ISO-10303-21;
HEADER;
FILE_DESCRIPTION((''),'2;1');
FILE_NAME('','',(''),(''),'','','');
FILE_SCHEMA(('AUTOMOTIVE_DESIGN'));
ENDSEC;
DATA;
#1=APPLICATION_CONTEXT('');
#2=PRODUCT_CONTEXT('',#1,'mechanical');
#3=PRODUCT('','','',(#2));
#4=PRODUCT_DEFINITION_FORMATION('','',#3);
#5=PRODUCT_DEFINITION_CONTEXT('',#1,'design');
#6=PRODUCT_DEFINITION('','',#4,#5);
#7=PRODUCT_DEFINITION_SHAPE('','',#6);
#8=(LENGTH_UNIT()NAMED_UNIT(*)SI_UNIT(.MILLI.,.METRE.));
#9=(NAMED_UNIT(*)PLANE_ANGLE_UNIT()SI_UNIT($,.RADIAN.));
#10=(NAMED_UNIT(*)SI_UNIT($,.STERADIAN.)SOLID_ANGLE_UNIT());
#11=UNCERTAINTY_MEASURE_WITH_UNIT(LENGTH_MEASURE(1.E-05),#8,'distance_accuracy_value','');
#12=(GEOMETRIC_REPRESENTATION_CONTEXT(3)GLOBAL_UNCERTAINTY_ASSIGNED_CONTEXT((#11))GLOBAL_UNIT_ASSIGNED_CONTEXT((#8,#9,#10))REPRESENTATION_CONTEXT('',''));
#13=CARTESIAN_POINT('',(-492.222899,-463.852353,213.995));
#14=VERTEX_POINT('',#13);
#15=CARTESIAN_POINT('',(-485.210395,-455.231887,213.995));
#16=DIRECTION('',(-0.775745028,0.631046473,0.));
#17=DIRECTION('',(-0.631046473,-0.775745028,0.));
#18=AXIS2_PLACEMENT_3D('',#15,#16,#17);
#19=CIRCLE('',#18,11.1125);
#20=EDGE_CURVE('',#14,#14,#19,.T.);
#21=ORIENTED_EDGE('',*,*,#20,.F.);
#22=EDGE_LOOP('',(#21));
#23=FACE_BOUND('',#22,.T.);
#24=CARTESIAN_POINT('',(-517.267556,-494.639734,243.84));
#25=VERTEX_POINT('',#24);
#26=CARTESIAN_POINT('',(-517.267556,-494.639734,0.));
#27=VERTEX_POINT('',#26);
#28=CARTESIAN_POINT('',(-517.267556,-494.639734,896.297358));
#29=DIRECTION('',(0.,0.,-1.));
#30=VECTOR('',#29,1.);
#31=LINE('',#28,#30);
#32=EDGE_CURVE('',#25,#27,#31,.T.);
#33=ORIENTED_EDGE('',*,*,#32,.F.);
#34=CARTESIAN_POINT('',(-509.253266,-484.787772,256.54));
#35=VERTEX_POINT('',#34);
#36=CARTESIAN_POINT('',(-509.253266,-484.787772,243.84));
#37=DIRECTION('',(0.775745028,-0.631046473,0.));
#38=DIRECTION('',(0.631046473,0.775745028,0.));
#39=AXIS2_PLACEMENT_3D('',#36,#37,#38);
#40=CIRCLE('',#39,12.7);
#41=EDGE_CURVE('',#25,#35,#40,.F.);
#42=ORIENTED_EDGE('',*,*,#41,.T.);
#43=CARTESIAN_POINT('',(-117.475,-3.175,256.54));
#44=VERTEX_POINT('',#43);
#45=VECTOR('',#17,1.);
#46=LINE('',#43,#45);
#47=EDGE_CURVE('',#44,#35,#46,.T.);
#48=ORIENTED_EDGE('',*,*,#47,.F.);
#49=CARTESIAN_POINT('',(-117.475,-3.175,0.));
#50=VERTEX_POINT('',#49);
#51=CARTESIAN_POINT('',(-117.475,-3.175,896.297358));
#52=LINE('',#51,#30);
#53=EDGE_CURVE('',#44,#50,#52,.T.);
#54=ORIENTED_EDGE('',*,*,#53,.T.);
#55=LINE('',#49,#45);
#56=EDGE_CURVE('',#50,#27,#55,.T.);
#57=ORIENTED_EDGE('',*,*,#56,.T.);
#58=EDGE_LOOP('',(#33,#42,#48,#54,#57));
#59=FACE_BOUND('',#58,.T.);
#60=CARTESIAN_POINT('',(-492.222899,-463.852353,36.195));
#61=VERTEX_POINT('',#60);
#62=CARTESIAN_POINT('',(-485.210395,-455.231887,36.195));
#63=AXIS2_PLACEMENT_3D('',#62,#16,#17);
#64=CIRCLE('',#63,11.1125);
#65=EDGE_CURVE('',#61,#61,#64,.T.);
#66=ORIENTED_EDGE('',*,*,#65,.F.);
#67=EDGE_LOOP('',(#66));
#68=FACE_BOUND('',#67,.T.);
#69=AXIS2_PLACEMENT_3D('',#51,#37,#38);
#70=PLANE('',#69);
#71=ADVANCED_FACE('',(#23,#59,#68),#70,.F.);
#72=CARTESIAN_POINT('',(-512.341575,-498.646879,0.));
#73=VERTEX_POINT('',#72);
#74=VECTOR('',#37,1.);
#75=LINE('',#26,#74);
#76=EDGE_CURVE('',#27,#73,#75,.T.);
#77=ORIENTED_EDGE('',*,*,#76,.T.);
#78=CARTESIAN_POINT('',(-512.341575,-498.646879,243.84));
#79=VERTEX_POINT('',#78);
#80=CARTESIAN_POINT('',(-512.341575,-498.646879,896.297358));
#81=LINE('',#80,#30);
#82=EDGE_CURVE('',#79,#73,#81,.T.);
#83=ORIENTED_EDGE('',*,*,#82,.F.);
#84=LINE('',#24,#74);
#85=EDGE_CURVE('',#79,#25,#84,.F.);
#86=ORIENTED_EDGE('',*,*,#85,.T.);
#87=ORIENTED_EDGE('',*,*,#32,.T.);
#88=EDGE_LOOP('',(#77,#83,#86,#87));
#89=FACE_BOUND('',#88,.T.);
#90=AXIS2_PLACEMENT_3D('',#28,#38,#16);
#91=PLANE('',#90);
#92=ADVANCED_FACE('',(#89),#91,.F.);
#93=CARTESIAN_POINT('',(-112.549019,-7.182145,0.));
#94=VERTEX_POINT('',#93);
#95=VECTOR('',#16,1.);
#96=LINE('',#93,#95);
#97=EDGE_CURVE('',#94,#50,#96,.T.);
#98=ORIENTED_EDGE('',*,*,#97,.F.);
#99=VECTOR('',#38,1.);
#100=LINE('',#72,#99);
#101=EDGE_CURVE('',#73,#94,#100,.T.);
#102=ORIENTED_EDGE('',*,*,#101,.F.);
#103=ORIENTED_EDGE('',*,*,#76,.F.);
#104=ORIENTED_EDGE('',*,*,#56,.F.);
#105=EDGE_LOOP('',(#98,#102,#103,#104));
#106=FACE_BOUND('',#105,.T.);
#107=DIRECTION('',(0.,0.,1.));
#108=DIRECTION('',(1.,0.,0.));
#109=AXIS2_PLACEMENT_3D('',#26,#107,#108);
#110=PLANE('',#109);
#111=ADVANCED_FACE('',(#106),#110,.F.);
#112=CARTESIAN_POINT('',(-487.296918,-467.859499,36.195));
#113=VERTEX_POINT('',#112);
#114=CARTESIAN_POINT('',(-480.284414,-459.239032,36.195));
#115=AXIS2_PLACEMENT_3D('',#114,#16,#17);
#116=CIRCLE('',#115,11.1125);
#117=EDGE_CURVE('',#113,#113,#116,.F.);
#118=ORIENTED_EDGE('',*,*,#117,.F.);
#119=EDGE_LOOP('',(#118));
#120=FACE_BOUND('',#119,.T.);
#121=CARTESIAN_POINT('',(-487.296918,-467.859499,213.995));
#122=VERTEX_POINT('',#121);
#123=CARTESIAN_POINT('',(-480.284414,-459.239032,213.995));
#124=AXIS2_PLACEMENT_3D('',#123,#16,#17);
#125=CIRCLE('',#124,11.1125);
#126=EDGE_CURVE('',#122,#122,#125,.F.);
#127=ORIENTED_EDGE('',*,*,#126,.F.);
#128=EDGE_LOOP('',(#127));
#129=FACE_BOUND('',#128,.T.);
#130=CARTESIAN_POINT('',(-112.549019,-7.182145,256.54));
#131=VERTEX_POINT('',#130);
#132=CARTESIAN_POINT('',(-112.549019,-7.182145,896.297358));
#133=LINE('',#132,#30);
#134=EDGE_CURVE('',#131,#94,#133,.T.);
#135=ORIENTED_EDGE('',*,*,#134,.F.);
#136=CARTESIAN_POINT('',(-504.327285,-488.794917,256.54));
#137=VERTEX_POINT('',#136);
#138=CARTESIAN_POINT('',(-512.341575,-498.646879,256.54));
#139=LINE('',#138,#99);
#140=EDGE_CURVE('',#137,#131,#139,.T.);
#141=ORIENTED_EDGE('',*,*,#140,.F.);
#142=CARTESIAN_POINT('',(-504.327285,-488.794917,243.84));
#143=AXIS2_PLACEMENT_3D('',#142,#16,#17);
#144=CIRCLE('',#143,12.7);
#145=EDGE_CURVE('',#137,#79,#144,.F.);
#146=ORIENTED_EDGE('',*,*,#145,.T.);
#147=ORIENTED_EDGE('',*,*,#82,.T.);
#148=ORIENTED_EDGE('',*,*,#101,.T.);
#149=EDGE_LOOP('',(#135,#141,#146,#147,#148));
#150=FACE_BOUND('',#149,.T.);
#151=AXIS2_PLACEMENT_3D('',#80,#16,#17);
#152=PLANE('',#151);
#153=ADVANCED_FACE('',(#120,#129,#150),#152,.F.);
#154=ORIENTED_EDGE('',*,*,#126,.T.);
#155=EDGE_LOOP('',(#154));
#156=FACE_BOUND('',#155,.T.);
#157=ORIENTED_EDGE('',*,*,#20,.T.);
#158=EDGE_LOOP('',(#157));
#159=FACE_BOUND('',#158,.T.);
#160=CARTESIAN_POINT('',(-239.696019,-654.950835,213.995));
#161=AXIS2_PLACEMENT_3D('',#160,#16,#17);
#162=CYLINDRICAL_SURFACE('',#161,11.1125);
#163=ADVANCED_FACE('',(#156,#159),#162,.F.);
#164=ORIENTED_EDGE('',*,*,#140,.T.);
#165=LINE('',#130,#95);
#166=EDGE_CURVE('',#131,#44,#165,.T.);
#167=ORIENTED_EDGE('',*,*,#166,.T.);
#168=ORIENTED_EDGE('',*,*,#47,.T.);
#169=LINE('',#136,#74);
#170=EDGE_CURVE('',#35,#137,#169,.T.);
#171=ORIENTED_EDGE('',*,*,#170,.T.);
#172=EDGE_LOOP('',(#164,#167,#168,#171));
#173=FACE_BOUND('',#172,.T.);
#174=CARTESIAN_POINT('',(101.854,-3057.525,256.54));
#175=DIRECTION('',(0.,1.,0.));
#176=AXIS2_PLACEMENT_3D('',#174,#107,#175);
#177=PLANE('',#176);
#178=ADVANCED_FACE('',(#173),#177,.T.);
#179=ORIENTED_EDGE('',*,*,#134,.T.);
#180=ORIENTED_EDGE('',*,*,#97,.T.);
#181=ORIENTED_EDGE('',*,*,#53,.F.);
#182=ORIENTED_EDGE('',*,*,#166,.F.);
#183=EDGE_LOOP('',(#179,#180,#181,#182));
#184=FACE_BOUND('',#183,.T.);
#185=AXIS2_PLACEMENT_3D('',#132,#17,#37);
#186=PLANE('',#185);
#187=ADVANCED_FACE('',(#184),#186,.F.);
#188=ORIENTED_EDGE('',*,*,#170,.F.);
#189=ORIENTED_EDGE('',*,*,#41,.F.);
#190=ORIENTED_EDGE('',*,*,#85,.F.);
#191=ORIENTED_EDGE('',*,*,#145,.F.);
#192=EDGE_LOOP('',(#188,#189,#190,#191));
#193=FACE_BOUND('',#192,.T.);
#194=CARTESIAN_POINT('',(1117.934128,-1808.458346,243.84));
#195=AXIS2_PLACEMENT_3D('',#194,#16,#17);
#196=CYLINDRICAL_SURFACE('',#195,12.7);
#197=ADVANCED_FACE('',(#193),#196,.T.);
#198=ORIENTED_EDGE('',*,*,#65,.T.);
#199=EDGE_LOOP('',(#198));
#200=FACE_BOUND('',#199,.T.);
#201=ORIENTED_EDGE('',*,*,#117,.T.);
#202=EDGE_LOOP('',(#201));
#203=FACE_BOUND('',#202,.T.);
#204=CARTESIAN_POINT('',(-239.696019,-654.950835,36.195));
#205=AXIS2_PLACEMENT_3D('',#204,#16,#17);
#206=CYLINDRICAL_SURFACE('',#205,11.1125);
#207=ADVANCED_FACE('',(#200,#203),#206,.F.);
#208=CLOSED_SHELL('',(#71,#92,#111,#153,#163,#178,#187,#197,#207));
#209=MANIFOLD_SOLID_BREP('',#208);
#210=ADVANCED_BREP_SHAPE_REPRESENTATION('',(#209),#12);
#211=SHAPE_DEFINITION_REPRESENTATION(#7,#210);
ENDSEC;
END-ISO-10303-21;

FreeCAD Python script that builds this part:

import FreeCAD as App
import Part
import Sketcher
Q = App.Units.Quantity


def edges_at(feature, points):
    """Names of the edges that pass closest to the given points."""
    edges = feature.Shape.Edges
    near = lambda p: min(range(len(edges)), key=lambda i: edges[i].distToShape(Part.Vertex(*p))[0])
    return sorted({f"Edge{near(p) + 1}" for p in points})

doc = App.newDocument("Part")
body = doc.addObject("PartDesign::Body", "Body")

sketch1 = body.newObject("Sketcher::SketchObject", "Sketch")
sketch1.AttachmentSupport = (doc.getObject("XY_Plane"), [""])
sketch1.MapMode = "FlatFace"
sketch1.addGeometry([
    Part.LineSegment(App.Vector(-112.549019, -7.182145, 0), App.Vector(-117.475, -3.175, 0)),
    Part.LineSegment(App.Vector(-117.475, -3.175, 0), App.Vector(-517.267556, -494.639734, 0)),
    Part.LineSegment(App.Vector(-517.267556, -494.639734, 0), App.Vector(-512.341575, -498.646879, 0)),
    Part.LineSegment(App.Vector(-512.341575, -498.646879, 0), App.Vector(-112.549019, -7.182145, 0)),
], False)
sketch1.addConstraint([
    Sketcher.Constraint("Coincident", 0, 2, 1, 1),
    Sketcher.Constraint("Coincident", 1, 2, 2, 1),
    Sketcher.Constraint("Coincident", 2, 2, 3, 1),
    Sketcher.Constraint("Coincident", 3, 2, 0, 1),
    Sketcher.Constraint("Perpendicular", 0, 1),
    Sketcher.Constraint("Perpendicular", 1, 2),
    Sketcher.Constraint("Perpendicular", 2, 3),
    Sketcher.Constraint("Distance", 0, Q("0.25 in")),
    Sketcher.Constraint("DistanceX", 0, 2, -1, 1, Q("4.625 in")),
    Sketcher.Constraint("DistanceY", 0, 2, -1, 1, Q("0.125 in")),
    Sketcher.Constraint("DistanceY", 2, 2, -1, 1, 498.646879),
    Sketcher.Constraint("DistanceX", 3, 2, -1, 1, 112.549019),
])
pad1 = body.newObject("PartDesign::Pad", "Pad")
pad1.Profile = sketch1
pad1.Length = Q("10.1 in")

sketch2 = body.newObject("Sketcher::SketchObject", "Sketch001")
sketch2.Placement = App.Placement(App.Vector(-69.139885, 56.243326, 0), App.Rotation(App.Vector(0, 0, 1), App.Vector(0.631046473, 0.775745028, 0), App.Vector(-0.775745028, 0.631046473, 0), "ZXY"))
sketch2.addGeometry(Part.Circle(App.Vector(36.195, -659.334181, 0), App.Vector(0, 0, 1), 11.1125), False)
sketch2.addConstraint([
    Sketcher.Constraint("Diameter", 0, Q("0.875 in")),
    Sketcher.Constraint("DistanceX", -1, 1, 0, 3, Q("1.425 in")),
    Sketcher.Constraint("DistanceY", 0, 3, -1, 1, 659.334181),
])
pocket1 = body.newObject("PartDesign::Pocket", "Pocket")
pocket1.Profile = sketch2
pocket1.Type = "UpToFirst"

sketch3 = body.newObject("Sketcher::SketchObject", "Sketch002")
sketch3.Placement = App.Placement(App.Vector(-69.139885, 56.243326, 0), App.Rotation(App.Vector(0, 0, 1), App.Vector(0.631046473, 0.775745028, 0), App.Vector(-0.775745028, 0.631046473, 0), "ZXY"))
sketch3.addGeometry(Part.Circle(App.Vector(213.995, -659.334181, 0), App.Vector(0, 0, 1), 11.1125), False)
sketch3.addConstraint([
    Sketcher.Constraint("Diameter", 0, Q("0.875 in")),
    Sketcher.Constraint("DistanceX", -1, 1, 0, 3, Q("8.425 in")),
    Sketcher.Constraint("DistanceY", 0, 3, -1, 1, 659.334181),
])
pocket2 = body.newObject("PartDesign::Pocket", "Pocket001")
pocket2.Profile = sketch3
pocket2.Type = "UpToFirst"
doc.recompute()

fillet = body.newObject("PartDesign::Fillet", "Fillet")
fillet.Base = (pocket2, edges_at(pocket2, [(-514.805, -496.643, 256.54)]))
fillet.Radius = Q("0.5 in")

doc.recompute()
